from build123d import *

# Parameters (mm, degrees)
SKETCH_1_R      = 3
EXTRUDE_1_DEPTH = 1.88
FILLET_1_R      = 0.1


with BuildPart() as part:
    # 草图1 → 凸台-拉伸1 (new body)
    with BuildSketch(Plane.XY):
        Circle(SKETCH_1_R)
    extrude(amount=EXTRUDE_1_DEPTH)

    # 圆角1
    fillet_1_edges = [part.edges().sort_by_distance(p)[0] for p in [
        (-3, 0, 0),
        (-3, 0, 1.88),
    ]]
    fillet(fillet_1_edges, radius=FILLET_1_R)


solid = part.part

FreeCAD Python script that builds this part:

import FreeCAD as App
import Part
import Sketcher

V = App.Vector
Q = App.Units.Quantity


def edges_at(feature, points):
    """Names of the edges that pass closest to the given points."""
    edges = feature.Shape.Edges
    near = lambda p: min(range(len(edges)), key=lambda i: edges[i].distToShape(Part.Vertex(*p))[0])
    return sorted({f"Edge{near(p) + 1}" for p in points})

doc = App.newDocument("Part")
body = doc.addObject("PartDesign::Body", "Body")

# Sketch on XY plane
sketch1 = doc.addObject("Sketcher::SketchObject", "Sketch")
body.addObject(sketch1)
sketch1.AttachmentSupport = (doc.XY_Plane, [""])
sketch1.MapMode = "FlatFace"
sketch1.addGeometry(Part.Circle(V(0, 0, 0), V(0, 0, 1), 3), False)
sketch1.addConstraint([
    Sketcher.Constraint("Coincident", 0, 3, -1, 1),
    Sketcher.Constraint("Diameter", 0, Q("6 mm")),
])
pad1 = doc.addObject("PartDesign::Pad", "Pad")
body.addObject(pad1)
pad1.Profile = sketch1
pad1.Length = 1.88
doc.recompute()

fillet = doc.addObject("PartDesign::Fillet", "Fillet")
body.addObject(fillet)
fillet.Base = (pad1, edges_at(pad1, [(-3, 0, 0), (-3, 0, 1.88)]))
fillet.Radius = 0.1

doc.recompute()
